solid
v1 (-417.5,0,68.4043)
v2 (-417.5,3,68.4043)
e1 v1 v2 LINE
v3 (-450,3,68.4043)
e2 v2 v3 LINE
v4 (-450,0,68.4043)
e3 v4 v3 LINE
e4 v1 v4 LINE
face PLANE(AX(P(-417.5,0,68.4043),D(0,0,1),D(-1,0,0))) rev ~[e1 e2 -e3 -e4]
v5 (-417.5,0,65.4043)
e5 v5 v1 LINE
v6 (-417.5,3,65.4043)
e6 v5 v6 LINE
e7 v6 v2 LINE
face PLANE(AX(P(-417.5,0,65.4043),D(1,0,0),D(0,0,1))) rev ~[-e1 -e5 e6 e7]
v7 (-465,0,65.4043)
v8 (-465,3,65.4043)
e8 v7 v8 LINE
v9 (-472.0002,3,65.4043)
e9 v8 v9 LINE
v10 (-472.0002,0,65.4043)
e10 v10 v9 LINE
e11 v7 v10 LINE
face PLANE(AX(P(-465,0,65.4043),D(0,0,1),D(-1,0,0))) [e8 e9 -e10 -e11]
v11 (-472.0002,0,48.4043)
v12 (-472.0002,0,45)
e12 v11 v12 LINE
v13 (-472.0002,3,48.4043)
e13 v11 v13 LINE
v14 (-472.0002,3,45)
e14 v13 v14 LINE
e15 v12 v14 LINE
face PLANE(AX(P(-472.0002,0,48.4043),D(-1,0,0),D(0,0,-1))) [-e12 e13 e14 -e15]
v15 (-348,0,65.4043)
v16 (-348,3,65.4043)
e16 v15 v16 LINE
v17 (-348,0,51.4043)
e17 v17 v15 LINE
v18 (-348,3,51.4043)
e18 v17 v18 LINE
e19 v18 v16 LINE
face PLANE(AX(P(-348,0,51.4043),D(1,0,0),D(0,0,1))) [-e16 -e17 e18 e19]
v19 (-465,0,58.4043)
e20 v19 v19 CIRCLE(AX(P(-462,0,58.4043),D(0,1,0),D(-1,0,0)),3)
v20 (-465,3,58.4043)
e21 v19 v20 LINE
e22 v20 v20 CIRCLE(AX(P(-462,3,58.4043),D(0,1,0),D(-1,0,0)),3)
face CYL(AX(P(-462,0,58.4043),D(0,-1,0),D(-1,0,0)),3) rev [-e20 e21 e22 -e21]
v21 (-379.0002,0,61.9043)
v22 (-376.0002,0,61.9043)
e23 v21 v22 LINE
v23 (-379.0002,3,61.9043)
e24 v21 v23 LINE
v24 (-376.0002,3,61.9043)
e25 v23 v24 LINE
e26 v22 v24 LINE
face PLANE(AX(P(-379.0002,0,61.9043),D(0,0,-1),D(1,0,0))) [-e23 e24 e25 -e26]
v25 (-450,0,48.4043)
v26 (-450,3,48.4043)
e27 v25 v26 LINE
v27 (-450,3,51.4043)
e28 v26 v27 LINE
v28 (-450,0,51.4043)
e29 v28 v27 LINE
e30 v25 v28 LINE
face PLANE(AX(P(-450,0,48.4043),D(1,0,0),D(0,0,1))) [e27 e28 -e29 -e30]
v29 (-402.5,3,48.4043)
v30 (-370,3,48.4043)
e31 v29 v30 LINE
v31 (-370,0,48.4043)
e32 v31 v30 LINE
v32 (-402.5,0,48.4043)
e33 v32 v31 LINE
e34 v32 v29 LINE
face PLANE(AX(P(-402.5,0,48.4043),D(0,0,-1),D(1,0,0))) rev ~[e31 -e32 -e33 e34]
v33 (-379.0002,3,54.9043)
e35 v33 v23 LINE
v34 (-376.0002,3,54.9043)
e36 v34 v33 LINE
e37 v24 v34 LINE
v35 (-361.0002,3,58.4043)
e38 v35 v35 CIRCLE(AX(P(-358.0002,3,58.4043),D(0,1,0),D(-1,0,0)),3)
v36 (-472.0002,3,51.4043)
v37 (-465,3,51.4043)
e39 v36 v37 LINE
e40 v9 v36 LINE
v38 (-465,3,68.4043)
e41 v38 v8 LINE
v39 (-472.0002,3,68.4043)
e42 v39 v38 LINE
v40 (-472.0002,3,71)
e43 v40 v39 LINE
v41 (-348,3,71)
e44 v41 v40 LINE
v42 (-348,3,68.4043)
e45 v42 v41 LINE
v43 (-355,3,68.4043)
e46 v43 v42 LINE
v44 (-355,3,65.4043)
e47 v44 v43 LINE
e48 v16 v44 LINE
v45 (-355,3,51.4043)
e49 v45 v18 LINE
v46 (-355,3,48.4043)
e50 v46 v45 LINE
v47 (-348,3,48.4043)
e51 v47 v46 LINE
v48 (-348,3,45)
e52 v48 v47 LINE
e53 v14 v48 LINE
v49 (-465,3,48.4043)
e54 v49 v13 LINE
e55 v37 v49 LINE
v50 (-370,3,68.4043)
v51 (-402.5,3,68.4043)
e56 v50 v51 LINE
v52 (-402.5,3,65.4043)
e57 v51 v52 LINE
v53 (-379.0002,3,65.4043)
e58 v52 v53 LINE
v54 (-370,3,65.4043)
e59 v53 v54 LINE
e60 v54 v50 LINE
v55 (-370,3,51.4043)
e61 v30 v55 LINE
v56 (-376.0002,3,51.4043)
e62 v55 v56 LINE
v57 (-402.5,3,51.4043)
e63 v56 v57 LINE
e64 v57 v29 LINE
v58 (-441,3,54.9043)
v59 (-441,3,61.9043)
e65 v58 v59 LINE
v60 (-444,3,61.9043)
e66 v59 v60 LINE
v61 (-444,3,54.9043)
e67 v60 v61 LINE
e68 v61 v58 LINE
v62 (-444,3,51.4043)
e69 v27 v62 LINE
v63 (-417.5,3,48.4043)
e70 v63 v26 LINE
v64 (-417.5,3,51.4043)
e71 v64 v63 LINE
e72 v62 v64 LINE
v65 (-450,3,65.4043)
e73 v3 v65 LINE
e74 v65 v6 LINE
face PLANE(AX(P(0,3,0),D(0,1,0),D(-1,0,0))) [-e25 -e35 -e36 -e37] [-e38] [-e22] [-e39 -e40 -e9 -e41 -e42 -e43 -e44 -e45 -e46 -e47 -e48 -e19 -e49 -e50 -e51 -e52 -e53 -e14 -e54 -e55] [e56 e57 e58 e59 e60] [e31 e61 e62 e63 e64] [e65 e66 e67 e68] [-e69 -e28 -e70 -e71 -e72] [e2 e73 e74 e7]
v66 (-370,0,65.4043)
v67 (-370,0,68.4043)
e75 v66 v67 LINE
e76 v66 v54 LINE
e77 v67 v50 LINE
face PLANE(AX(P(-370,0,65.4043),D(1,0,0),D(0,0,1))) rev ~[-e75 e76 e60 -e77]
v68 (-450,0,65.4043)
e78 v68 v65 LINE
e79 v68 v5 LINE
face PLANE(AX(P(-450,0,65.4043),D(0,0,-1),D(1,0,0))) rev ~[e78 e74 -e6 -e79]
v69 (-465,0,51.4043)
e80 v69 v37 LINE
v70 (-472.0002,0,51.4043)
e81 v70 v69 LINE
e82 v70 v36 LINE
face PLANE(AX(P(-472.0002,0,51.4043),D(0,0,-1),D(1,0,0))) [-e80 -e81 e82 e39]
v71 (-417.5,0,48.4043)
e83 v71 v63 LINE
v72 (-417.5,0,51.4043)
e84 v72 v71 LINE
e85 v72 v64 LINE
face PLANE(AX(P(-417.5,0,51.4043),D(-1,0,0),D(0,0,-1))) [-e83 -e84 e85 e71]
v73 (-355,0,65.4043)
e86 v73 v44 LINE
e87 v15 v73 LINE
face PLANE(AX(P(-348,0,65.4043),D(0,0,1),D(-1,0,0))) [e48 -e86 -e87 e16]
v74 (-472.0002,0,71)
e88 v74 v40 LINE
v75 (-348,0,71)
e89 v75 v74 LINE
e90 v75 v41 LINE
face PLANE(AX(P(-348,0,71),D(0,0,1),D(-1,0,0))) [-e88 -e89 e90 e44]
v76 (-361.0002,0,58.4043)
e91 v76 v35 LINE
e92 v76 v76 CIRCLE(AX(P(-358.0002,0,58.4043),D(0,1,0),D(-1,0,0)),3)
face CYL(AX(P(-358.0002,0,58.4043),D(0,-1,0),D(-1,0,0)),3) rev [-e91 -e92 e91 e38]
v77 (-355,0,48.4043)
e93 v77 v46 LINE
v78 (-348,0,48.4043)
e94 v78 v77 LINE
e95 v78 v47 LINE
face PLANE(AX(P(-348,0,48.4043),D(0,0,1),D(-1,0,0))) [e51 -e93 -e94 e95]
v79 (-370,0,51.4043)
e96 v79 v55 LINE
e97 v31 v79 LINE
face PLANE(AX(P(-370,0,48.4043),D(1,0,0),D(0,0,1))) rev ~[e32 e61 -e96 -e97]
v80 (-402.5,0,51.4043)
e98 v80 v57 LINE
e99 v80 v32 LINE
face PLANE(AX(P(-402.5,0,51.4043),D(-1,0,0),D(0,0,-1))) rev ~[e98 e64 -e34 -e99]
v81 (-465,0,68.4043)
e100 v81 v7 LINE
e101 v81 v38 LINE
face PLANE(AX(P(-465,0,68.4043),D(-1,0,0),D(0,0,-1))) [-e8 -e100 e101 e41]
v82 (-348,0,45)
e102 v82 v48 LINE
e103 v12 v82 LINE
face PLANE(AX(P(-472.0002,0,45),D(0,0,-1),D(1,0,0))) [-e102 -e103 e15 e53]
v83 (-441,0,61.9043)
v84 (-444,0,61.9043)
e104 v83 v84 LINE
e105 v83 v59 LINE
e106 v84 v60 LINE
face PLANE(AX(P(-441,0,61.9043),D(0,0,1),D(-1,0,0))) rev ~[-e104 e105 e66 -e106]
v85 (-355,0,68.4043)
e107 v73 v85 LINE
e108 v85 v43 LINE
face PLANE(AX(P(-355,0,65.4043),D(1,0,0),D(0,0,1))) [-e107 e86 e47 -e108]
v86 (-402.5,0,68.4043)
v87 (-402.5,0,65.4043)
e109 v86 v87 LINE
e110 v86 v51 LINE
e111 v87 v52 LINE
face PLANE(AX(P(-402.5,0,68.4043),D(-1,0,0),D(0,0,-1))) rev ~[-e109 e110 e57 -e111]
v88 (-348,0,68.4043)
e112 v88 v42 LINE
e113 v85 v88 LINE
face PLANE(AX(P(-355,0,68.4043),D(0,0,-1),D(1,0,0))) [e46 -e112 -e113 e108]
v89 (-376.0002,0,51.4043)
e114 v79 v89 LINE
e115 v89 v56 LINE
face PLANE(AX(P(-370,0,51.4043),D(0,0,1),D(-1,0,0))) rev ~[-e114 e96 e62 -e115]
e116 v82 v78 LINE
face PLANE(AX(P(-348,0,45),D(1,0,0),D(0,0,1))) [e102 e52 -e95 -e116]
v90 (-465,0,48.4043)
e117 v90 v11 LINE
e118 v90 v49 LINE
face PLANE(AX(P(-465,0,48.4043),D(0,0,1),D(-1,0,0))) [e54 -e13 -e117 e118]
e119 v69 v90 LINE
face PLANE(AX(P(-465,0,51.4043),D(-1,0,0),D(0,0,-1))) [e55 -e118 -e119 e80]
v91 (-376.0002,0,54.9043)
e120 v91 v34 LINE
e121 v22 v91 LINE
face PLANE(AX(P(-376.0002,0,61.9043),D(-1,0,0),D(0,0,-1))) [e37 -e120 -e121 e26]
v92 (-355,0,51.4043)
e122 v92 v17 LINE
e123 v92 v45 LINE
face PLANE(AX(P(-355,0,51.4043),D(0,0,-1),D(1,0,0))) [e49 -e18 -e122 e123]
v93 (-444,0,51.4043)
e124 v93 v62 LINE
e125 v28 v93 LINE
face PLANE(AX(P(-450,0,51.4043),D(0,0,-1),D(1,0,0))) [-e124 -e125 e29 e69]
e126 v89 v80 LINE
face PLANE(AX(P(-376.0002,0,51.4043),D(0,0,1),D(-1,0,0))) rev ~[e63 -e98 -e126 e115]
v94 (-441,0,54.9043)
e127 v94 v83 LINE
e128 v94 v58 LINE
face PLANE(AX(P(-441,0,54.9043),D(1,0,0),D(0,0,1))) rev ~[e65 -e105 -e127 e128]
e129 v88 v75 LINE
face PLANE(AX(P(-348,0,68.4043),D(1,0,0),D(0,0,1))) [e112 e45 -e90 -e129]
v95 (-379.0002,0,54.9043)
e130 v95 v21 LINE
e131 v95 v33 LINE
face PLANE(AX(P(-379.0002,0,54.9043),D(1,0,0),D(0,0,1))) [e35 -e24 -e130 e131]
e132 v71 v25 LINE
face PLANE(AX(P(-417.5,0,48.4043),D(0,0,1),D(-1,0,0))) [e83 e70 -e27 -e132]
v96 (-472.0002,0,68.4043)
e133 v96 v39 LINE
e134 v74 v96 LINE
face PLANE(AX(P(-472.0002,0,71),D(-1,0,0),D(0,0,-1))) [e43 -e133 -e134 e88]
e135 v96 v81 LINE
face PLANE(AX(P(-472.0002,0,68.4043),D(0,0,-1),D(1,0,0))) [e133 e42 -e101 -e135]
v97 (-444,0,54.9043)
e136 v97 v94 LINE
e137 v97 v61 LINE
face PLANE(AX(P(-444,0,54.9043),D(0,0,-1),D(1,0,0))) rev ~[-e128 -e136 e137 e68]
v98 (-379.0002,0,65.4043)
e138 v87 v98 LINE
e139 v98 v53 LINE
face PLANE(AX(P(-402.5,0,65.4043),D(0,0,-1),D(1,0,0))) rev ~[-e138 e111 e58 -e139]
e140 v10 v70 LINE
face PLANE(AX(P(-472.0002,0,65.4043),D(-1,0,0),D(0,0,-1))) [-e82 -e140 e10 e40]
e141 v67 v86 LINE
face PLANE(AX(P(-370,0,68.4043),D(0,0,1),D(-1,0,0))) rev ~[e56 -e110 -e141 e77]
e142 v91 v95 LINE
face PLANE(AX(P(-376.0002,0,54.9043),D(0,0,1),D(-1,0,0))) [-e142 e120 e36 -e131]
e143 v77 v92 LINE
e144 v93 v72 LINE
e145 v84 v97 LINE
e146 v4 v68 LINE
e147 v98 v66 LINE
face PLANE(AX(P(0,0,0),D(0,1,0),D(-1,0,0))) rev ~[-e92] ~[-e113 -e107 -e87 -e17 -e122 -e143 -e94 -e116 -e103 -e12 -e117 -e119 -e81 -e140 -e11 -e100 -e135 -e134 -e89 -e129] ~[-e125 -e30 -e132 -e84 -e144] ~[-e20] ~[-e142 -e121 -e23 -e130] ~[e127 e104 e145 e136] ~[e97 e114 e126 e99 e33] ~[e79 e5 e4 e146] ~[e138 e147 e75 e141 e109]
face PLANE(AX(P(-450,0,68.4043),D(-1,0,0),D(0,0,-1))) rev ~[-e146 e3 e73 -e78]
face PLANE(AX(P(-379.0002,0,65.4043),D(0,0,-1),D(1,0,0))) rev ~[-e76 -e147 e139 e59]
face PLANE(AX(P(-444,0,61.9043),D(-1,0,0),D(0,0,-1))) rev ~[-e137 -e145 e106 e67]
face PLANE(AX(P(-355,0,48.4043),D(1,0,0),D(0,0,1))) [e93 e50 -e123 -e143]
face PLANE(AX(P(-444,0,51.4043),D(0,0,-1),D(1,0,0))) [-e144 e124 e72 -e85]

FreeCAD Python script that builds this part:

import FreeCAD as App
import Part
import Sketcher

V = App.Vector
Q = App.Units.Quantity

doc = App.newDocument("Part")
body = doc.addObject("PartDesign::Body", "Body")

# Sketch on XZ plane
sketch1 = doc.addObject("Sketcher::SketchObject", "Sketch")
body.addObject(sketch1)
sketch1.AttachmentSupport = (doc.XZ_Plane, [""])
sketch1.MapMode = "FlatFace"
sketch1.addGeometry(Part.LineSegment(V(-472, 71, 0), V(-348, 71, 0)), False)
sketch1.addGeometry(Part.LineSegment(V(-348, 71, 0), V(-348, 68.4, 0)), False)
sketch1.addGeometry(Part.LineSegment(V(-348, 68.4, 0), V(-355, 68.4, 0)), False)
sketch1.addGeometry(Part.LineSegment(V(-355, 68.4, 0), V(-355, 65.4, 0)), False)
sketch1.addGeometry(Part.LineSegment(V(-355, 65.4, 0), V(-348, 65.4, 0)), False)
sketch1.addGeometry(Part.LineSegment(V(-348, 65.4, 0), V(-348, 51.4, 0)), False)
sketch1.addGeometry(Part.LineSegment(V(-348, 51.4, 0), V(-355, 51.4, 0)), False)
sketch1.addGeometry(Part.LineSegment(V(-355, 51.4, 0), V(-355, 48.4, 0)), False)
sketch1.addGeometry(Part.LineSegment(V(-355, 48.4, 0), V(-348, 48.4, 0)), False)
sketch1.addGeometry(Part.LineSegment(V(-348, 48.4, 0), V(-348, 45, 0)), False)
sketch1.addGeometry(Part.LineSegment(V(-348, 45, 0), V(-472, 45, 0)), False)
sketch1.addGeometry(Part.LineSegment(V(-472, 45, 0), V(-472, 48.4, 0)), False)
sketch1.addGeometry(Part.LineSegment(V(-472, 48.4, 0), V(-465, 48.4, 0)), False)
sketch1.addGeometry(Part.LineSegment(V(-465, 48.4, 0), V(-465, 51.4, 0)), False)
sketch1.addGeometry(Part.LineSegment(V(-465, 51.4, 0), V(-472, 51.4, 0)), False)
sketch1.addGeometry(Part.LineSegment(V(-472, 51.4, 0), V(-472, 65.4, 0)), False)
sketch1.addGeometry(Part.LineSegment(V(-472, 65.4, 0), V(-465, 65.4, 0)), False)
sketch1.addGeometry(Part.LineSegment(V(-465, 65.4, 0), V(-465, 68.4, 0)), False)
sketch1.addGeometry(Part.LineSegment(V(-465, 68.4, 0), V(-472, 68.4, 0)), False)
sketch1.addGeometry(Part.LineSegment(V(-472, 68.4, 0), V(-472, 71, 0)), False)
sketch1.addGeometry(Part.LineSegment(V(-370, 51.4, 0), V(-402.5, 51.4, 0)), False)
sketch1.addGeometry(Part.LineSegment(V(-402.5, 51.4, 0), V(-402.5, 48.4, 0)), False)
sketch1.addGeometry(Part.LineSegment(V(-402.5, 48.4, 0), V(-370, 48.4, 0)), False)
sketch1.addGeometry(Part.LineSegment(V(-370, 48.4, 0), V(-370, 51.4, 0)), False)
sketch1.addGeometry(Part.Circle(V(-358, 58.4, 0), V(0, 0, 1), 3), False)
sketch1.addGeometry(Part.LineSegment(V(-376, 61.9, 0), V(-379, 61.9, 0)), False)
sketch1.addGeometry(Part.LineSegment(V(-379, 61.9, 0), V(-379, 54.9, 0)), False)
sketch1.addGeometry(Part.LineSegment(V(-379, 54.9, 0), V(-376, 54.9, 0)), False)
sketch1.addGeometry(Part.LineSegment(V(-376, 54.9, 0), V(-376, 61.9, 0)), False)
sketch1.addGeometry(Part.LineSegment(V(-402.5, 65.4, 0), V(-370, 65.4, 0)), False)
sketch1.addGeometry(Part.LineSegment(V(-370, 65.4, 0), V(-370, 68.4, 0)), False)
sketch1.addGeometry(Part.LineSegment(V(-370, 68.4, 0), V(-402.5, 68.4, 0)), False)
sketch1.addGeometry(Part.LineSegment(V(-402.5, 68.4, 0), V(-402.5, 65.4, 0)), False)
sketch1.addGeometry(Part.LineSegment(V(-417.5, 51.4, 0), V(-450, 51.4, 0)), False)
sketch1.addGeometry(Part.LineSegment(V(-450, 51.4, 0), V(-450, 48.4, 0)), False)
sketch1.addGeometry(Part.LineSegment(V(-450, 48.4, 0), V(-417.5, 48.4, 0)), False)
sketch1.addGeometry(Part.LineSegment(V(-417.5, 48.4, 0), V(-417.5, 51.4, 0)), False)
sketch1.addGeometry(Part.LineSegment(V(-441, 54.9, 0), V(-441, 61.9, 0)), False)
sketch1.addGeometry(Part.LineSegment(V(-441, 61.9, 0), V(-444, 61.9, 0)), False)
sketch1.addGeometry(Part.LineSegment(V(-444, 61.9, 0), V(-444, 54.9, 0)), False)
sketch1.addGeometry(Part.LineSegment(V(-444, 54.9, 0), V(-441, 54.9, 0)), False)
sketch1.addGeometry(Part.LineSegment(V(-450, 65.4, 0), V(-417.5, 65.4, 0)), False)
sketch1.addGeometry(Part.LineSegment(V(-417.5, 65.4, 0), V(-417.5, 68.4, 0)), False)
sketch1.addGeometry(Part.LineSegment(V(-417.5, 68.4, 0), V(-450, 68.4, 0)), False)
sketch1.addGeometry(Part.LineSegment(V(-450, 68.4, 0), V(-450, 65.4, 0)), False)
sketch1.addGeometry(Part.Circle(V(-462, 58.4, 0), V(0, 0, 1), 3), False)
sketch1.addConstraint(Sketcher.Constraint("Coincident", 0, 2, 1, 1))
sketch1.addConstraint(Sketcher.Constraint("Coincident", 1, 2, 2, 1))
sketch1.addConstraint(Sketcher.Constraint("Coincident", 2, 2, 3, 1))
sketch1.addConstraint(Sketcher.Constraint("Coincident", 3, 2, 4, 1))
sketch1.addConstraint(Sketcher.Constraint("Coincident", 4, 2, 5, 1))
sketch1.addConstraint(Sketcher.Constraint("Coincident", 5, 2, 6, 1))
sketch1.addConstraint(Sketcher.Constraint("Coincident", 6, 2, 7, 1))
sketch1.addConstraint(Sketcher.Constraint("Coincident", 7, 2, 8, 1))
sketch1.addConstraint(Sketcher.Constraint("Coincident", 8, 2, 9, 1))
sketch1.addConstraint(Sketcher.Constraint("Coincident", 9, 2, 10, 1))
sketch1.addConstraint(Sketcher.Constraint("Coincident", 10, 2, 11, 1))
sketch1.addConstraint(Sketcher.Constraint("Coincident", 11, 2, 12, 1))
sketch1.addConstraint(Sketcher.Constraint("Coincident", 12, 2, 13, 1))
sketch1.addConstraint(Sketcher.Constraint("Coincident", 13, 2, 14, 1))
sketch1.addConstraint(Sketcher.Constraint("Coincident", 14, 2, 15, 1))
sketch1.addConstraint(Sketcher.Constraint("Coincident", 15, 2, 16, 1))
sketch1.addConstraint(Sketcher.Constraint("Coincident", 16, 2, 17, 1))
sketch1.addConstraint(Sketcher.Constraint("Coincident", 17, 2, 18, 1))
sketch1.addConstraint(Sketcher.Constraint("Coincident", 18, 2, 19, 1))
sketch1.addConstraint(Sketcher.Constraint("Coincident", 19, 2, 0, 1))
sketch1.addConstraint(Sketcher.Constraint("Coincident", 20, 2, 21, 1))
sketch1.addConstraint(Sketcher.Constraint("Coincident", 21, 2, 22, 1))
sketch1.addConstraint(Sketcher.Constraint("Coincident", 22, 2, 23, 1))
sketch1.addConstraint(Sketcher.Constraint("Coincident", 23, 2, 20, 1))
sketch1.addConstraint(Sketcher.Constraint("Coincident", 25, 2, 26, 1))
sketch1.addConstraint(Sketcher.Constraint("Coincident", 26, 2, 27, 1))
sketch1.addConstraint(Sketcher.Constraint("Coincident", 27, 2, 28, 1))
sketch1.addConstraint(Sketcher.Constraint("Coincident", 28, 2, 25, 1))
sketch1.addConstraint(Sketcher.Constraint("Coincident", 29, 2, 30, 1))
sketch1.addConstraint(Sketcher.Constraint("Coincident", 30, 2, 31, 1))
sketch1.addConstraint(Sketcher.Constraint("Coincident", 31, 2, 32, 1))
sketch1.addConstraint(Sketcher.Constraint("Coincident", 32, 2, 29, 1))
sketch1.addConstraint(Sketcher.Constraint("Coincident", 33, 2, 34, 1))
sketch1.addConstraint(Sketcher.Constraint("Coincident", 34, 2, 35, 1))
sketch1.addConstraint(Sketcher.Constraint("Coincident", 35, 2, 36, 1))
sketch1.addConstraint(Sketcher.Constraint("Coincident", 36, 2, 33, 1))
sketch1.addConstraint(Sketcher.Constraint("Coincident", 37, 2, 38, 1))
sketch1.addConstraint(Sketcher.Constraint("Coincident", 38, 2, 39, 1))
sketch1.addConstraint(Sketcher.Constraint("Coincident", 39, 2, 40, 1))
sketch1.addConstraint(Sketcher.Constraint("Coincident", 40, 2, 37, 1))
sketch1.addConstraint(Sketcher.Constraint("Coincident", 41, 2, 42, 1))
sketch1.addConstraint(Sketcher.Constraint("Coincident", 42, 2, 43, 1))
sketch1.addConstraint(Sketcher.Constraint("Coincident", 43, 2, 44, 1))
sketch1.addConstraint(Sketcher.Constraint("Coincident", 44, 2, 41, 1))
sketch1.addConstraint(Sketcher.Constraint("Horizontal", 0))
sketch1.addConstraint(Sketcher.Constraint("Vertical", 1))
sketch1.addConstraint(Sketcher.Constraint("Horizontal", 2))
sketch1.addConstraint(Sketcher.Constraint("Vertical", 3))
sketch1.addConstraint(Sketcher.Constraint("Horizontal", 4))
sketch1.addConstraint(Sketcher.Constraint("Vertical", 5))
sketch1.addConstraint(Sketcher.Constraint("Horizontal", 6))
sketch1.addConstraint(Sketcher.Constraint("Vertical", 7))
sketch1.addConstraint(Sketcher.Constraint("Horizontal", 8))
sketch1.addConstraint(Sketcher.Constraint("Vertical", 9))
sketch1.addConstraint(Sketcher.Constraint("Horizontal", 10))
sketch1.addConstraint(Sketcher.Constraint("Vertical", 11))
sketch1.addConstraint(Sketcher.Constraint("Horizontal", 12))
sketch1.addConstraint(Sketcher.Constraint("Vertical", 13))
sketch1.addConstraint(Sketcher.Constraint("Horizontal", 14))
sketch1.addConstraint(Sketcher.Constraint("Vertical", 15))
sketch1.addConstraint(Sketcher.Constraint("Horizontal", 16))
sketch1.addConstraint(Sketcher.Constraint("Vertical", 17))
sketch1.addConstraint(Sketcher.Constraint("Horizontal", 18))
sketch1.addConstraint(Sketcher.Constraint("Vertical", 19))
sketch1.addConstraint(Sketcher.Constraint("Horizontal", 20))
sketch1.addConstraint(Sketcher.Constraint("Vertical", 21))
sketch1.addConstraint(Sketcher.Constraint("Horizontal", 22))
sketch1.addConstraint(Sketcher.Constraint("Vertical", 23))
sketch1.addConstraint(Sketcher.Constraint("Horizontal", 25))
sketch1.addConstraint(Sketcher.Constraint("Vertical", 26))
sketch1.addConstraint(Sketcher.Constraint("Horizontal", 27))
sketch1.addConstraint(Sketcher.Constraint("Vertical", 28))
sketch1.addConstraint(Sketcher.Constraint("Horizontal", 29))
sketch1.addConstraint(Sketcher.Constraint("Vertical", 30))
sketch1.addConstraint(Sketcher.Constraint("Horizontal", 31))
sketch1.addConstraint(Sketcher.Constraint("Vertical", 32))
sketch1.addConstraint(Sketcher.Constraint("Horizontal", 33))
sketch1.addConstraint(Sketcher.Constraint("Vertical", 34))
sketch1.addConstraint(Sketcher.Constraint("Horizontal", 35))
sketch1.addConstraint(Sketcher.Constraint("Vertical", 36))
sketch1.addConstraint(Sketcher.Constraint("Vertical", 37))
sketch1.addConstraint(Sketcher.Constraint("Horizontal", 38))
sketch1.addConstraint(Sketcher.Constraint("Vertical", 39))
sketch1.addConstraint(Sketcher.Constraint("Horizontal", 40))
sketch1.addConstraint(Sketcher.Constraint("Horizontal", 41))
sketch1.addConstraint(Sketcher.Constraint("Vertical", 42))
sketch1.addConstraint(Sketcher.Constraint("Horizontal", 43))
sketch1.addConstraint(Sketcher.Constraint("Vertical", 44))
sketch1.addConstraint(Sketcher.Constraint("Equal", 24, 45))
sketch1.addConstraint(Sketcher.Constraint("Horizontal", 24, 3, 45, 3))
sketch1.addConstraint(Sketcher.Constraint("Horizontal", 8, 2, 11, 2))
sketch1.addConstraint(Sketcher.Constraint("Horizontal", 6, 2, 13, 2))
sketch1.addConstraint(Sketcher.Constraint("Horizontal", 4, 2, 15, 2))
sketch1.addConstraint(Sketcher.Constraint("Horizontal", 2, 2, 17, 2))
sketch1.addConstraint(Sketcher.Constraint("Horizontal", 14, 2, 20, 2))
sketch1.addConstraint(Sketcher.Constraint("Horizontal", 12, 2, 21, 2))
sketch1.addConstraint(Sketcher.Constraint("Horizontal", 16, 2, 29, 2))
sketch1.addConstraint(Sketcher.Constraint("Horizontal", 18, 2, 30, 2))
sketch1.addConstraint(Sketcher.Constraint("Horizontal", 23, 2, 33, 2))
sketch1.addConstraint(Sketcher.Constraint("Horizontal", 22, 2, 34, 2))
sketch1.addConstraint(Sketcher.Constraint("Horizontal", 28, 2, 37, 2))
sketch1.addConstraint(Sketcher.Constraint("Horizontal", 27, 2, 39, 2))
sketch1.addConstraint(Sketcher.Constraint("Horizontal", 32, 2, 41, 2))
sketch1.addConstraint(Sketcher.Constraint("Horizontal", 31, 2, 42, 2))
sketch1.addConstraint(Sketcher.Constraint("Vertical", 1, 2, 4, 2))
sketch1.addConstraint(Sketcher.Constraint("Vertical", 3, 2, 6, 2))
sketch1.addConstraint(Sketcher.Constraint("Vertical", 5, 2, 8, 2))
sketch1.addConstraint(Sketcher.Constraint("Vertical", 11, 2, 14, 2))
sketch1.addConstraint(Sketcher.Constraint("Vertical", 13, 2, 16, 2))
sketch1.addConstraint(Sketcher.Constraint("Vertical", 15, 2, 18, 2))
sketch1.addConstraint(Sketcher.Constraint("Vertical", 23, 2, 29, 2))
sketch1.addConstraint(Sketcher.Constraint("Vertical", 21, 2, 31, 2))
sketch1.addConstraint(Sketcher.Constraint("Vertical", 36, 2, 41, 2))
sketch1.addConstraint(Sketcher.Constraint("Vertical", 34, 2, 43, 2))
sketch1.addConstraint(Sketcher.Constraint("Equal", 31, 33))
sketch1.addConstraint(Sketcher.Constraint("Equal", 27, 38))
sketch1.addConstraint(Sketcher.Constraint("Equal", 40, 3))
sketch1.addConstraint(Sketcher.Constraint("Equal", 3, 7))
sketch1.addConstraint(Sketcher.Constraint("Equal", 8, 26))
sketch1.addConstraint(Sketcher.Constraint("Diameter", 24, Q("6 mm")))
sketch1.addConstraint(Sketcher.Constraint("DistanceX", 2, 2, 2, 1, Q("7 mm")))
sketch1.addConstraint(Sketcher.Constraint("DistanceX", 25, 2, 25, 1, Q("3 mm")))
sketch1.addConstraint(Sketcher.Constraint("DistanceY", 5, 2, 5, 1, Q("14 mm")))
sketch1.addConstraint(Sketcher.Constraint("DistanceX", 20, 2, 20, 1, Q("32.5 mm")))
sketch1.addConstraint(Sketcher.Constraint("DistanceX", 45, 3, -1, 1, Q("462 mm")))
sketch1.addConstraint(Sketcher.Constraint("DistanceX", 0, 2, -1, 1, Q("348 mm")))
sketch1.addConstraint(Sketcher.Constraint("DistanceY", -1, 1, 0, 2, Q("71 mm")))
sketch1.addConstraint(Sketcher.Constraint("DistanceY", -1, 1, 9, 2, Q("45 mm")))
sketch1.addConstraint(Sketcher.Constraint("DistanceX", 12, 2, -1, 1, Q("465 mm")))
sketch1.addConstraint(Sketcher.Constraint("DistanceX", 22, 2, -1, 1, Q("370 mm")))
sketch1.addConstraint(Sketcher.Constraint("DistanceX", 33, 2, -1, 1, Q("450 mm")))
sketch1.addConstraint(Sketcher.Constraint("DistanceX", 37, 2, -1, 1, Q("441 mm")))
sketch1.addConstraint(Sketcher.Constraint("DistanceY", 24, 3, 1, 2, Q("10 mm")))
sketch1.addConstraint(Sketcher.Constraint("DistanceX", 10, 2, 24, 3, Q("114 mm")))
sketch1.addConstraint(Sketcher.Constraint("DistanceX", 25, 2, 24, 3, Q("21 mm")))
sketch1.addConstraint(Sketcher.Constraint("DistanceY", 23, 2, 25, 2, Q("10.5 mm")))
sketch1.addConstraint(Sketcher.Constraint("DistanceX", 0, 1, 0, 2, Q("124.0002 mm")))
sketch1.addConstraint(Sketcher.Constraint("DistanceY", 1, 2, 1, 1, Q("2.5957 mm")))
pad1 = doc.addObject("PartDesign::Pad", "Pad")
body.addObject(pad1)
pad1.Profile = sketch1
pad1.Length = 3
pad1.Reversed = True

doc.recompute()
